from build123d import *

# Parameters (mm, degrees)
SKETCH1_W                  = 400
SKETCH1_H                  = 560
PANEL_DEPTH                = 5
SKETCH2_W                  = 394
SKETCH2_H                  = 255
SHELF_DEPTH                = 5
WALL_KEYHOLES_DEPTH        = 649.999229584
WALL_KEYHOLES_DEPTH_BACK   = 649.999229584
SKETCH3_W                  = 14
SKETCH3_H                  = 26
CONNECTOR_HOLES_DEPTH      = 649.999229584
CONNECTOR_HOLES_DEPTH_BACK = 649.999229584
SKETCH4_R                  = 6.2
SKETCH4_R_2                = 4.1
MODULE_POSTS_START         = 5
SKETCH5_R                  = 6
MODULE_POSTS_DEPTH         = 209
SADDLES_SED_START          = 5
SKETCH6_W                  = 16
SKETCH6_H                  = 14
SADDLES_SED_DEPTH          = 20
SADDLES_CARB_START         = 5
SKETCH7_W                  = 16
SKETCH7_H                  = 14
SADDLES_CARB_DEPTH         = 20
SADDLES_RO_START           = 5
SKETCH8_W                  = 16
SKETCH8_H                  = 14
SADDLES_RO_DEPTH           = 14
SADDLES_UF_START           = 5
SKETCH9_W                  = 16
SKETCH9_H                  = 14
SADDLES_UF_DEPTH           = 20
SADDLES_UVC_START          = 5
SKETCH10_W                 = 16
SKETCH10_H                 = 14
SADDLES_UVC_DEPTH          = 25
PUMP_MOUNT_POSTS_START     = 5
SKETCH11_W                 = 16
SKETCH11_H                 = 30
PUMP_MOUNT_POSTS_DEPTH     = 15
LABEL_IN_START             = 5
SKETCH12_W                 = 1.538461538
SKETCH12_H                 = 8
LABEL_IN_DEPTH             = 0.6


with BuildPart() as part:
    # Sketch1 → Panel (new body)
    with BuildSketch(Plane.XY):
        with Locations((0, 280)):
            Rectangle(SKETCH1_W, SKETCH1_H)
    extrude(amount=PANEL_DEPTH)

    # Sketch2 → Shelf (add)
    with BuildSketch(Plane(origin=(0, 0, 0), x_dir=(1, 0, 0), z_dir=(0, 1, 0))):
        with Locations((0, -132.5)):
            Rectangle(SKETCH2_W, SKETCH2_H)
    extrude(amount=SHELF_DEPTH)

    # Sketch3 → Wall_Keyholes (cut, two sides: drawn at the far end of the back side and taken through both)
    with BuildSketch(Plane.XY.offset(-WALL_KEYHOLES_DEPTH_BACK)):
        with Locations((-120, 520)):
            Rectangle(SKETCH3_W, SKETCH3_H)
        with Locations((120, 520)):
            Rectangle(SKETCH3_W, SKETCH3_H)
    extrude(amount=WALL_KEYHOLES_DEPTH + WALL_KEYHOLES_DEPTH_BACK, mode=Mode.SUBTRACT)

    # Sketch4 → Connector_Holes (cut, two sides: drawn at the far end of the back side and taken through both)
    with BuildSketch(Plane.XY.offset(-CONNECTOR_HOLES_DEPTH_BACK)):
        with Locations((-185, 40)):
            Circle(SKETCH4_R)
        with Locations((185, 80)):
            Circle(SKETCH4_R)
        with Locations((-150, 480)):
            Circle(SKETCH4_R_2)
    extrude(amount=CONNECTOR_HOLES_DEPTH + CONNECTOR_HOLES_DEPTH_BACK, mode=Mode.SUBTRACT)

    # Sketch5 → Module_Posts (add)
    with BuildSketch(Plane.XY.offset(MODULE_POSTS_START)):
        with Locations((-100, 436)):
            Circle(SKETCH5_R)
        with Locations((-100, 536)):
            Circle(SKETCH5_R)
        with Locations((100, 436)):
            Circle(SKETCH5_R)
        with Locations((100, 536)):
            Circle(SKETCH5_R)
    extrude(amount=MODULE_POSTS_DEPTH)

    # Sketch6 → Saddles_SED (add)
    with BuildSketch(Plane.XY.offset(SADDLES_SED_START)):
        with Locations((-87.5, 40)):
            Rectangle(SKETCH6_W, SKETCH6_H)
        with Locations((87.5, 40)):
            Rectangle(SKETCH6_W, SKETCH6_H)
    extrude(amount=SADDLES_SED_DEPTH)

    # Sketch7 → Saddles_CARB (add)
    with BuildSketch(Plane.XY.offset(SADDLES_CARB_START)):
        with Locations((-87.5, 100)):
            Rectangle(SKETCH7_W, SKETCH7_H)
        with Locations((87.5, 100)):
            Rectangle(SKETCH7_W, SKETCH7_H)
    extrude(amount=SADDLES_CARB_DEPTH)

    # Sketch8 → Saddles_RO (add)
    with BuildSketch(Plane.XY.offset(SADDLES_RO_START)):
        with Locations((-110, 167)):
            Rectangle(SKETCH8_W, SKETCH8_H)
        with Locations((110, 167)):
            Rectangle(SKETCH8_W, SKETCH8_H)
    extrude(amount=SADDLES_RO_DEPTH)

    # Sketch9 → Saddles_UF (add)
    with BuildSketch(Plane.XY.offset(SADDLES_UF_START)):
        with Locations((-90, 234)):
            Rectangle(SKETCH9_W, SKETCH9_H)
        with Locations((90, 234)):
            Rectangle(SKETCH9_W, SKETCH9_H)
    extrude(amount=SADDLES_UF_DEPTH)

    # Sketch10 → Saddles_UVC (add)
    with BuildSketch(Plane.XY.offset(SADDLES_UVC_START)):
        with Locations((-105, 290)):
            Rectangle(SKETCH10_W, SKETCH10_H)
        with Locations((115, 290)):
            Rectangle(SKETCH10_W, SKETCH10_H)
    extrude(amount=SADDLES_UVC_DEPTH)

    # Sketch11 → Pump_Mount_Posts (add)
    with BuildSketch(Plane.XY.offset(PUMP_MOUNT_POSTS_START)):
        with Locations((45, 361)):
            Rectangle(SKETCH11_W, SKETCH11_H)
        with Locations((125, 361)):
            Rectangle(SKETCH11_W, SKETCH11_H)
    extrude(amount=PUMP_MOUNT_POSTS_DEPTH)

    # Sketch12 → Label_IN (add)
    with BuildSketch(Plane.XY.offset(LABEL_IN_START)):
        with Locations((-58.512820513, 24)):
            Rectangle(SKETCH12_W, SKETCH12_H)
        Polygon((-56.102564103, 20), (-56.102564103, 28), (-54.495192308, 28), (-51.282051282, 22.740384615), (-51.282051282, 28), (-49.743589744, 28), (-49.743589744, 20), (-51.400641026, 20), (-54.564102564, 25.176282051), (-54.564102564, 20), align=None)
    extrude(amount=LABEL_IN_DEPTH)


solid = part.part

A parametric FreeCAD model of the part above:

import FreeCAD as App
import Part
import Sketcher

doc = App.newDocument("Part")
params = doc.addObject("Spreadsheet::Sheet", "Params")
for row, (alias, value) in enumerate([
    ("sketch1_width", "400 mm"),
    ("sketch1_height", "560 mm"),
    ("pad1_length", "5 mm"),
    ("sketch2_width", "394 mm"),
    ("sketch2_height", "255 mm"),
    ("pad2_length", "5 mm"),
    ("sketch3_width", "14 mm"),
    ("sketch3_height", "26 mm"),
    ("sketch4_diameter", "12.4 mm"),
    ("sketch4_diameter2", "8.2 mm"),
    ("sketch5_diameter", "12 mm"),
    ("pad3_length", "209 mm"),
    ("sketch6_width", "16 mm"),
    ("sketch6_height", "14 mm"),
    ("pad4_length", "20 mm"),
    ("sketch7_width", "16 mm"),
    ("sketch7_height", "14 mm"),
    ("pad5_length", "20 mm"),
    ("sketch8_width", "16 mm"),
    ("sketch8_height", "14 mm"),
    ("pad6_length", "14 mm"),
    ("sketch9_width", "16 mm"),
    ("sketch9_height", "14 mm"),
    ("pad7_length", "20 mm"),
    ("sketch10_width", "16 mm"),
    ("sketch10_height", "14 mm"),
    ("pad8_length", "25 mm"),
    ("sketch11_width", "16 mm"),
    ("sketch11_height", "30 mm"),
    ("pad9_length", "15 mm"),
    ("sketch12_height", "8 mm"),
    ("pad10_length", "0.6 mm"),
], start=1):
    params.set(f"A{row}", alias)
    params.set(f"B{row}", "=" + value)
    params.setAlias(f"B{row}", alias)

body = doc.addObject("PartDesign::Body", "Body")

# Sketch on XY plane
sketch1 = doc.addObject("Sketcher::SketchObject", "Sketch")
body.addObject(sketch1)
sketch1.AttachmentSupport = (doc.XY_Plane, [""])
sketch1.MapMode = "FlatFace"
sketch1.addGeometry([
    Part.LineSegment(App.Vector(-200, 560, 0), App.Vector(-200, 0, 0)),
    Part.LineSegment(App.Vector(-200, 0, 0), App.Vector(200, 0, 0)),
    Part.LineSegment(App.Vector(200, 0, 0), App.Vector(200, 560, 0)),
    Part.LineSegment(App.Vector(200, 560, 0), App.Vector(-200, 560, 0)),
], False)
sketch1.addConstraint([
    Sketcher.Constraint("Coincident", 0, 2, 1, 1),
    Sketcher.Constraint("Coincident", 1, 2, 2, 1),
    Sketcher.Constraint("Coincident", 2, 2, 3, 1),
    Sketcher.Constraint("Coincident", 3, 2, 0, 1),
    Sketcher.Constraint("Vertical", 0),
    Sketcher.Constraint("Horizontal", 1),
    Sketcher.Constraint("Vertical", 2),
    Sketcher.Constraint("Horizontal", 3),
    Sketcher.Constraint("Symmetric", 0, 2, 1, 2, -1, 1),
    Sketcher.Constraint("DistanceX", 1, 1, 1, 2, 400.0),
    Sketcher.Constraint("DistanceY", 0, 2, 0, 1, 560.0),
])
sketch1.setExpression("Constraints[9]", "Params.sketch1_width")
sketch1.setExpression("Constraints[10]", "Params.sketch1_height")
pad1 = doc.addObject("PartDesign::Pad", "Pad")
body.addObject(pad1)
pad1.Profile = sketch1
pad1.setExpression("Length", "Params.pad1_length")

# Sketch on XZ plane
sketch2 = doc.addObject("Sketcher::SketchObject", "Sketch001")
body.addObject(sketch2)
sketch2.AttachmentSupport = (doc.XZ_Plane, [""])
sketch2.MapMode = "FlatFace"
sketch2.addGeometry([
    Part.LineSegment(App.Vector(-197, 5, 0), App.Vector(-197, 260, 0)),
    Part.LineSegment(App.Vector(-197, 260, 0), App.Vector(197, 260, 0)),
    Part.LineSegment(App.Vector(197, 260, 0), App.Vector(197, 5, 0)),
    Part.LineSegment(App.Vector(197, 5, 0), App.Vector(-197, 5, 0)),
], False)
sketch2.addConstraint([
    Sketcher.Constraint("Coincident", 0, 2, 1, 1),
    Sketcher.Constraint("Coincident", 1, 2, 2, 1),
    Sketcher.Constraint("Coincident", 2, 2, 3, 1),
    Sketcher.Constraint("Coincident", 3, 2, 0, 1),
    Sketcher.Constraint("Vertical", 0),
    Sketcher.Constraint("Horizontal", 1),
    Sketcher.Constraint("Vertical", 2),
    Sketcher.Constraint("Horizontal", 3),
    Sketcher.Constraint("DistanceX", 1, 1, 1, 2, 394.0),
    Sketcher.Constraint("DistanceY", 0, 1, 0, 2, 255.0),
    Sketcher.Constraint("DistanceX", 0, 2, -1, 1, 197.0),
    Sketcher.Constraint("DistanceY", -1, 1, 0, 2, 260.0),
])
sketch2.setExpression("Constraints[8]", "Params.sketch2_width")
sketch2.setExpression("Constraints[9]", "Params.sketch2_height")
pad2 = doc.addObject("PartDesign::Pad", "Pad001")
body.addObject(pad2)
pad2.Profile = sketch2
pad2.setExpression("Length", "Params.pad2_length")
pad2.Reversed = True

# Sketch on XY plane
sketch3 = doc.addObject("Sketcher::SketchObject", "Sketch002")
body.addObject(sketch3)
sketch3.AttachmentSupport = (doc.XY_Plane, [""])
sketch3.MapMode = "FlatFace"
sketch3.addGeometry([
    Part.LineSegment(App.Vector(-127, 533, 0), App.Vector(-127, 507, 0)),  # 0
    Part.LineSegment(App.Vector(-127, 507, 0), App.Vector(-113, 507, 0)),  # 1
    Part.LineSegment(App.Vector(-113, 507, 0), App.Vector(-113, 533, 0)),  # 2
    Part.LineSegment(App.Vector(-113, 533, 0), App.Vector(-127, 533, 0)),  # 3
    Part.LineSegment(App.Vector(113, 533, 0), App.Vector(113, 507, 0)),  # 4
    Part.LineSegment(App.Vector(113, 507, 0), App.Vector(127, 507, 0)),  # 5
    Part.LineSegment(App.Vector(127, 507, 0), App.Vector(127, 533, 0)),  # 6
    Part.LineSegment(App.Vector(127, 533, 0), App.Vector(113, 533, 0)),  # 7
], False)
sketch3.addConstraint([
    Sketcher.Constraint("Coincident", 0, 2, 1, 1),
    Sketcher.Constraint("Coincident", 1, 2, 2, 1),
    Sketcher.Constraint("Coincident", 2, 2, 3, 1),
    Sketcher.Constraint("Coincident", 3, 2, 0, 1),
    Sketcher.Constraint("Coincident", 4, 2, 5, 1),
    Sketcher.Constraint("Coincident", 5, 2, 6, 1),
    Sketcher.Constraint("Coincident", 6, 2, 7, 1),
    Sketcher.Constraint("Coincident", 7, 2, 4, 1),
    Sketcher.Constraint("Vertical", 0),
    Sketcher.Constraint("Horizontal", 1),
    Sketcher.Constraint("Vertical", 2),
    Sketcher.Constraint("Horizontal", 3),
    Sketcher.Constraint("Vertical", 4),
    Sketcher.Constraint("Horizontal", 5),
    Sketcher.Constraint("Vertical", 6),
    Sketcher.Constraint("Horizontal", 7),
    Sketcher.Constraint("Symmetric", 1, 2, 4, 2, -2),
    Sketcher.Constraint("Symmetric", 3, 2, 6, 2, -2),
    Sketcher.Constraint("DistanceX", 1, 1, 1, 2, 14.0),
    Sketcher.Constraint("DistanceY", 0, 2, 0, 1, 26.0),
    Sketcher.Constraint("DistanceX", 0, 2, -1, 1, 127.0),
    Sketcher.Constraint("DistanceY", -1, 1, 0, 2, 507.0),
])
sketch3.setExpression("Constraints[18]", "Params.sketch3_width")
sketch3.setExpression("Constraints[19]", "Params.sketch3_height")
pocket1 = doc.addObject("PartDesign::Pocket", "Pocket")
body.addObject(pocket1)
pocket1.Profile = sketch3
pocket1.Type = "ThroughAll"
pocket1.Midplane = True

# Sketch on XY plane
sketch4 = doc.addObject("Sketcher::SketchObject", "Sketch003")
body.addObject(sketch4)
sketch4.AttachmentSupport = (doc.XY_Plane, [""])
sketch4.MapMode = "FlatFace"
sketch4.addGeometry([
    Part.Circle(App.Vector(-185, 40, 0), App.Vector(0, 0, 1), 6.2),
    Part.Circle(App.Vector(185, 80, 0), App.Vector(0, 0, 1), 6.2),
    Part.Circle(App.Vector(-150, 480, 0), App.Vector(0, 0, 1), 4.1),
], False)
sketch4.addConstraint([
    Sketcher.Constraint("Equal", 0, 1),
    Sketcher.Constraint("Diameter", 0, 12.4),
    Sketcher.Constraint("Diameter", 2, 8.2),
    Sketcher.Constraint("DistanceX", 0, 3, -1, 1, 185.0),
    Sketcher.Constraint("DistanceY", -1, 1, 0, 3, 40.0),
    Sketcher.Constraint("DistanceX", -1, 1, 1, 3, 185.0),
    Sketcher.Constraint("DistanceY", -1, 1, 1, 3, 80.0),
    Sketcher.Constraint("DistanceX", 2, 3, -1, 1, 150.0),
    Sketcher.Constraint("DistanceY", -1, 1, 2, 3, 480.0),
])
sketch4.setExpression("Constraints[1]", "Params.sketch4_diameter")
sketch4.setExpression("Constraints[2]", "Params.sketch4_diameter2")
pocket2 = doc.addObject("PartDesign::Pocket", "Pocket001")
body.addObject(pocket2)
pocket2.Profile = sketch4
pocket2.Type = "ThroughAll"
pocket2.Midplane = True

# Sketch on XY plane
sketch5 = doc.addObject("Sketcher::SketchObject", "Sketch004")
body.addObject(sketch5)
sketch5.AttachmentSupport = (doc.XY_Plane, [""])
sketch5.MapMode = "FlatFace"
sketch5.AttachmentOffset = App.Placement(App.Vector(0, 0, 5), App.Rotation())
sketch5.addGeometry([
    Part.Circle(App.Vector(-100, 436, 0), App.Vector(0, 0, 1), 6),
    Part.Circle(App.Vector(-100, 536, 0), App.Vector(0, 0, 1), 6),
    Part.Circle(App.Vector(100, 436, 0), App.Vector(0, 0, 1), 6),
    Part.Circle(App.Vector(100, 536, 0), App.Vector(0, 0, 1), 6),
], False)
sketch5.addConstraint([
    Sketcher.Constraint("Equal", 0, 1),
    Sketcher.Constraint("Equal", 1, 2),
    Sketcher.Constraint("Equal", 2, 3),
    Sketcher.Constraint("Symmetric", 0, 3, 2, 3, -2),
    Sketcher.Constraint("Symmetric", 1, 3, 3, 3, -2),
    Sketcher.Constraint("Vertical", 0, 3, 1, 3),
    Sketcher.Constraint("Diameter", 0, 12.0),
    Sketcher.Constraint("DistanceX", 0, 3, -1, 1, 100.0),
    Sketcher.Constraint("DistanceY", -1, 1, 0, 3, 436.0),
    Sketcher.Constraint("DistanceY", -1, 1, 1, 3, 536.0),
])
sketch5.setExpression("Constraints[6]", "Params.sketch5_diameter")
pad3 = doc.addObject("PartDesign::Pad", "Pad002")
body.addObject(pad3)
pad3.Profile = sketch5
pad3.setExpression("Length", "Params.pad3_length")

# Sketch on XY plane
sketch6 = doc.addObject("Sketcher::SketchObject", "Sketch005")
body.addObject(sketch6)
sketch6.AttachmentSupport = (doc.XY_Plane, [""])
sketch6.MapMode = "FlatFace"
sketch6.AttachmentOffset = App.Placement(App.Vector(0, 0, 5), App.Rotation())
sketch6.addGeometry([
    Part.LineSegment(App.Vector(-96, 47, 0), App.Vector(-96, 33, 0)),  # 0
    Part.LineSegment(App.Vector(-96, 33, 0), App.Vector(-80, 33, 0)),  # 1
    Part.LineSegment(App.Vector(-80, 33, 0), App.Vector(-80, 47, 0)),  # 2
    Part.LineSegment(App.Vector(-80, 47, 0), App.Vector(-96, 47, 0)),  # 3
    Part.LineSegment(App.Vector(80, 47, 0), App.Vector(80, 33, 0)),  # 4
    Part.LineSegment(App.Vector(80, 33, 0), App.Vector(96, 33, 0)),  # 5
    Part.LineSegment(App.Vector(96, 33, 0), App.Vector(96, 47, 0)),  # 6
    Part.LineSegment(App.Vector(96, 47, 0), App.Vector(80, 47, 0)),  # 7
], False)
sketch6.addConstraint([
    Sketcher.Constraint("Coincident", 0, 2, 1, 1),
    Sketcher.Constraint("Coincident", 1, 2, 2, 1),
    Sketcher.Constraint("Coincident", 2, 2, 3, 1),
    Sketcher.Constraint("Coincident", 3, 2, 0, 1),
    Sketcher.Constraint("Coincident", 4, 2, 5, 1),
    Sketcher.Constraint("Coincident", 5, 2, 6, 1),
    Sketcher.Constraint("Coincident", 6, 2, 7, 1),
    Sketcher.Constraint("Coincident", 7, 2, 4, 1),
    Sketcher.Constraint("Vertical", 0),
    Sketcher.Constraint("Horizontal", 1),
    Sketcher.Constraint("Vertical", 2),
    Sketcher.Constraint("Horizontal", 3),
    Sketcher.Constraint("Vertical", 4),
    Sketcher.Constraint("Horizontal", 5),
    Sketcher.Constraint("Vertical", 6),
    Sketcher.Constraint("Horizontal", 7),
    Sketcher.Constraint("Symmetric", 1, 2, 4, 2, -2),
    Sketcher.Constraint("Symmetric", 3, 2, 6, 2, -2),
    Sketcher.Constraint("DistanceX", 1, 1, 1, 2, 16.0),
    Sketcher.Constraint("DistanceY", 0, 2, 0, 1, 14.0),
    Sketcher.Constraint("DistanceY", -1, 1, 0, 2, 33.0),
    Sketcher.Constraint("DistanceX", 1, 2, 4, 2, 159.0),
])
sketch6.setExpression("Constraints[18]", "Params.sketch6_width")
sketch6.setExpression("Constraints[19]", "Params.sketch6_height")
pad4 = doc.addObject("PartDesign::Pad", "Pad003")
body.addObject(pad4)
pad4.Profile = sketch6
pad4.setExpression("Length", "Params.pad4_length")

# Sketch on XY plane
sketch7 = doc.addObject("Sketcher::SketchObject", "Sketch006")
body.addObject(sketch7)
sketch7.AttachmentSupport = (doc.XY_Plane, [""])
sketch7.MapMode = "FlatFace"
sketch7.AttachmentOffset = App.Placement(App.Vector(0, 0, 5), App.Rotation())
sketch7.addGeometry([
    Part.LineSegment(App.Vector(-96, 107, 0), App.Vector(-96, 93, 0)),  # 0
    Part.LineSegment(App.Vector(-96, 93, 0), App.Vector(-80, 93, 0)),  # 1
    Part.LineSegment(App.Vector(-80, 93, 0), App.Vector(-80, 107, 0)),  # 2
    Part.LineSegment(App.Vector(-80, 107, 0), App.Vector(-96, 107, 0)),  # 3
    Part.LineSegment(App.Vector(80, 107, 0), App.Vector(80, 93, 0)),  # 4
    Part.LineSegment(App.Vector(80, 93, 0), App.Vector(96, 93, 0)),  # 5
    Part.LineSegment(App.Vector(96, 93, 0), App.Vector(96, 107, 0)),  # 6
    Part.LineSegment(App.Vector(96, 107, 0), App.Vector(80, 107, 0)),  # 7
], False)
sketch7.addConstraint([
    Sketcher.Constraint("Coincident", 0, 2, 1, 1),
    Sketcher.Constraint("Coincident", 1, 2, 2, 1),
    Sketcher.Constraint("Coincident", 2, 2, 3, 1),
    Sketcher.Constraint("Coincident", 3, 2, 0, 1),
    Sketcher.Constraint("Coincident", 4, 2, 5, 1),
    Sketcher.Constraint("Coincident", 5, 2, 6, 1),
    Sketcher.Constraint("Coincident", 6, 2, 7, 1),
    Sketcher.Constraint("Coincident", 7, 2, 4, 1),
    Sketcher.Constraint("Vertical", 0),
    Sketcher.Constraint("Horizontal", 1),
    Sketcher.Constraint("Vertical", 2),
    Sketcher.Constraint("Horizontal", 3),
    Sketcher.Constraint("Vertical", 4),
    Sketcher.Constraint("Horizontal", 5),
    Sketcher.Constraint("Vertical", 6),
    Sketcher.Constraint("Horizontal", 7),
    Sketcher.Constraint("Symmetric", 1, 2, 4, 2, -2),
    Sketcher.Constraint("Symmetric", 3, 2, 6, 2, -2),
    Sketcher.Constraint("DistanceX", 1, 1, 1, 2, 16.0),
    Sketcher.Constraint("DistanceY", 0, 2, 0, 1, 14.0),
    Sketcher.Constraint("DistanceY", -1, 1, 0, 2, 93.0),
    Sketcher.Constraint("DistanceX", 1, 2, 4, 2, 159.0),
])
sketch7.setExpression("Constraints[18]", "Params.sketch7_width")
sketch7.setExpression("Constraints[19]", "Params.sketch7_height")
pad5 = doc.addObject("PartDesign::Pad", "Pad004")
body.addObject(pad5)
pad5.Profile = sketch7
pad5.setExpression("Length", "Params.pad5_length")

# Sketch on XY plane
sketch8 = doc.addObject("Sketcher::SketchObject", "Sketch007")
body.addObject(sketch8)
sketch8.AttachmentSupport = (doc.XY_Plane, [""])
sketch8.MapMode = "FlatFace"
sketch8.AttachmentOffset = App.Placement(App.Vector(0, 0, 5), App.Rotation())
sketch8.addGeometry([
    Part.LineSegment(App.Vector(-118, 174, 0), App.Vector(-118, 160, 0)),  # 0
    Part.LineSegment(App.Vector(-118, 160, 0), App.Vector(-102, 160, 0)),  # 1
    Part.LineSegment(App.Vector(-102, 160, 0), App.Vector(-102, 174, 0)),  # 2
    Part.LineSegment(App.Vector(-102, 174, 0), App.Vector(-118, 174, 0)),  # 3
    Part.LineSegment(App.Vector(102, 174, 0), App.Vector(102, 160, 0)),  # 4
    Part.LineSegment(App.Vector(102, 160, 0), App.Vector(118, 160, 0)),  # 5
    Part.LineSegment(App.Vector(118, 160, 0), App.Vector(118, 174, 0)),  # 6
    Part.LineSegment(App.Vector(118, 174, 0), App.Vector(102, 174, 0)),  # 7
], False)
sketch8.addConstraint([
    Sketcher.Constraint("Coincident", 0, 2, 1, 1),
    Sketcher.Constraint("Coincident", 1, 2, 2, 1),
    Sketcher.Constraint("Coincident", 2, 2, 3, 1),
    Sketcher.Constraint("Coincident", 3, 2, 0, 1),
    Sketcher.Constraint("Coincident", 4, 2, 5, 1),
    Sketcher.Constraint("Coincident", 5, 2, 6, 1),
    Sketcher.Constraint("Coincident", 6, 2, 7, 1),
    Sketcher.Constraint("Coincident", 7, 2, 4, 1),
    Sketcher.Constraint("Vertical", 0),
    Sketcher.Constraint("Horizontal", 1),
    Sketcher.Constraint("Vertical", 2),
    Sketcher.Constraint("Horizontal", 3),
    Sketcher.Constraint("Vertical", 4),
    Sketcher.Constraint("Horizontal", 5),
    Sketcher.Constraint("Vertical", 6),
    Sketcher.Constraint("Horizontal", 7),
    Sketcher.Constraint("Symmetric", 1, 2, 4, 2, -2),
    Sketcher.Constraint("Symmetric", 3, 2, 6, 2, -2),
    Sketcher.Constraint("DistanceX", 1, 1, 1, 2, 16.0),
    Sketcher.Constraint("DistanceY", 0, 2, 0, 1, 14.0),
    Sketcher.Constraint("DistanceX", 0, 2, -1, 1, 118.0),
    Sketcher.Constraint("DistanceY", -1, 1, 0, 2, 160.0),
])
sketch8.setExpression("Constraints[18]", "Params.sketch8_width")
sketch8.setExpression("Constraints[19]", "Params.sketch8_height")
pad6 = doc.addObject("PartDesign::Pad", "Pad005")
body.addObject(pad6)
pad6.Profile = sketch8
pad6.setExpression("Length", "Params.pad6_length")

# Sketch on XY plane
sketch9 = doc.addObject("Sketcher::SketchObject", "Sketch008")
body.addObject(sketch9)
sketch9.AttachmentSupport = (doc.XY_Plane, [""])
sketch9.MapMode = "FlatFace"
sketch9.AttachmentOffset = App.Placement(App.Vector(0, 0, 5), App.Rotation())
sketch9.addGeometry([
    Part.LineSegment(App.Vector(-98, 241, 0), App.Vector(-98, 227, 0)),  # 0
    Part.LineSegment(App.Vector(-98, 227, 0), App.Vector(-82, 227, 0)),  # 1
    Part.LineSegment(App.Vector(-82, 227, 0), App.Vector(-82, 241, 0)),  # 2
    Part.LineSegment(App.Vector(-82, 241, 0), App.Vector(-98, 241, 0)),  # 3
    Part.LineSegment(App.Vector(82, 241, 0), App.Vector(82, 227, 0)),  # 4
    Part.LineSegment(App.Vector(82, 227, 0), App.Vector(98, 227, 0)),  # 5
    Part.LineSegment(App.Vector(98, 227, 0), App.Vector(98, 241, 0)),  # 6
    Part.LineSegment(App.Vector(98, 241, 0), App.Vector(82, 241, 0)),  # 7
], False)
sketch9.addConstraint([
    Sketcher.Constraint("Coincident", 0, 2, 1, 1),
    Sketcher.Constraint("Coincident", 1, 2, 2, 1),
    Sketcher.Constraint("Coincident", 2, 2, 3, 1),
    Sketcher.Constraint("Coincident", 3, 2, 0, 1),
    Sketcher.Constraint("Coincident", 4, 2, 5, 1),
    Sketcher.Constraint("Coincident", 5, 2, 6, 1),
    Sketcher.Constraint("Coincident", 6, 2, 7, 1),
    Sketcher.Constraint("Coincident", 7, 2, 4, 1),
    Sketcher.Constraint("Vertical", 0),
    Sketcher.Constraint("Horizontal", 1),
    Sketcher.Constraint("Vertical", 2),
    Sketcher.Constraint("Horizontal", 3),
    Sketcher.Constraint("Vertical", 4),
    Sketcher.Constraint("Horizontal", 5),
    Sketcher.Constraint("Vertical", 6),
    Sketcher.Constraint("Horizontal", 7),
    Sketcher.Constraint("Symmetric", 1, 2, 4, 2, -2),
    Sketcher.Constraint("Symmetric", 3, 2, 6, 2, -2),
    Sketcher.Constraint("DistanceX", 1, 1, 1, 2, 16.0),
    Sketcher.Constraint("DistanceY", 0, 2, 0, 1, 14.0),
    Sketcher.Constraint("DistanceX", 0, 2, -1, 1, 98.0),
    Sketcher.Constraint("DistanceY", -1, 1, 0, 2, 227.0),
])
sketch9.setExpression("Constraints[18]", "Params.sketch9_width")
sketch9.setExpression("Constraints[19]", "Params.sketch9_height")
pad7 = doc.addObject("PartDesign::Pad", "Pad006")
body.addObject(pad7)
pad7.Profile = sketch9
pad7.setExpression("Length", "Params.pad7_length")

# Sketch on XY plane
sketch10 = doc.addObject("Sketcher::SketchObject", "Sketch009")
body.addObject(sketch10)
sketch10.AttachmentSupport = (doc.XY_Plane, [""])
sketch10.MapMode = "FlatFace"
sketch10.AttachmentOffset = App.Placement(App.Vector(0, 0, 5), App.Rotation())
sketch10.addGeometry([
    Part.LineSegment(App.Vector(-113, 297, 0), App.Vector(-113, 283, 0)),  # 0
    Part.LineSegment(App.Vector(-113, 283, 0), App.Vector(-97, 283, 0)),  # 1
    Part.LineSegment(App.Vector(-97, 283, 0), App.Vector(-97, 297, 0)),  # 2
    Part.LineSegment(App.Vector(-97, 297, 0), App.Vector(-113, 297, 0)),  # 3
    Part.LineSegment(App.Vector(107, 297, 0), App.Vector(107, 283, 0)),  # 4
    Part.LineSegment(App.Vector(107, 283, 0), App.Vector(123, 283, 0)),  # 5
    Part.LineSegment(App.Vector(123, 283, 0), App.Vector(123, 297, 0)),  # 6
    Part.LineSegment(App.Vector(123, 297, 0), App.Vector(107, 297, 0)),  # 7
], False)
sketch10.addConstraint([
    Sketcher.Constraint("Coincident", 0, 2, 1, 1),
    Sketcher.Constraint("Coincident", 1, 2, 2, 1),
    Sketcher.Constraint("Coincident", 2, 2, 3, 1),
    Sketcher.Constraint("Coincident", 3, 2, 0, 1),
    Sketcher.Constraint("Coincident", 4, 2, 5, 1),
    Sketcher.Constraint("Coincident", 5, 2, 6, 1),
    Sketcher.Constraint("Coincident", 6, 2, 7, 1),
    Sketcher.Constraint("Coincident", 7, 2, 4, 1),
    Sketcher.Constraint("Vertical", 0),
    Sketcher.Constraint("Horizontal", 1),
    Sketcher.Constraint("Vertical", 2),
    Sketcher.Constraint("Horizontal", 3),
    Sketcher.Constraint("Vertical", 4),
    Sketcher.Constraint("Horizontal", 5),
    Sketcher.Constraint("Vertical", 6),
    Sketcher.Constraint("Horizontal", 7),
    Sketcher.Constraint("Horizontal", 1, 2, 4, 2),
    Sketcher.Constraint("Horizontal", 3, 2, 6, 2),
    Sketcher.Constraint("Equal", 3, 5),
    Sketcher.Constraint("DistanceX", 1, 1, 1, 2, 16.0),
    Sketcher.Constraint("DistanceY", 0, 2, 0, 1, 14.0),
    Sketcher.Constraint("DistanceX", 0, 2, -1, 1, 113.0),
    Sketcher.Constraint("DistanceY", -1, 1, 0, 2, 283.0),
    Sketcher.Constraint("DistanceX", -1, 1, 4, 2, 107.0),
])
sketch10.setExpression("Constraints[19]", "Params.sketch10_width")
sketch10.setExpression("Constraints[20]", "Params.sketch10_height")
pad8 = doc.addObject("PartDesign::Pad", "Pad007")
body.addObject(pad8)
pad8.Profile = sketch10
pad8.setExpression("Length", "Params.pad8_length")

# Sketch on XY plane
sketch11 = doc.addObject("Sketcher::SketchObject", "Sketch010")
body.addObject(sketch11)
sketch11.AttachmentSupport = (doc.XY_Plane, [""])
sketch11.MapMode = "FlatFace"
sketch11.AttachmentOffset = App.Placement(App.Vector(0, 0, 5), App.Rotation())
sketch11.addGeometry([
    Part.LineSegment(App.Vector(37, 376, 0), App.Vector(37, 346, 0)),  # 0
    Part.LineSegment(App.Vector(37, 346, 0), App.Vector(53, 346, 0)),  # 1
    Part.LineSegment(App.Vector(53, 346, 0), App.Vector(53, 376, 0)),  # 2
    Part.LineSegment(App.Vector(53, 376, 0), App.Vector(37, 376, 0)),  # 3
    Part.LineSegment(App.Vector(117, 376, 0), App.Vector(117, 346, 0)),  # 4
    Part.LineSegment(App.Vector(117, 346, 0), App.Vector(133, 346, 0)),  # 5
    Part.LineSegment(App.Vector(133, 346, 0), App.Vector(133, 376, 0)),  # 6
    Part.LineSegment(App.Vector(133, 376, 0), App.Vector(117, 376, 0)),  # 7
], False)
sketch11.addConstraint([
    Sketcher.Constraint("Coincident", 0, 2, 1, 1),
    Sketcher.Constraint("Coincident", 1, 2, 2, 1),
    Sketcher.Constraint("Coincident", 2, 2, 3, 1),
    Sketcher.Constraint("Coincident", 3, 2, 0, 1),
    Sketcher.Constraint("Coincident", 4, 2, 5, 1),
    Sketcher.Constraint("Coincident", 5, 2, 6, 1),
    Sketcher.Constraint("Coincident", 6, 2, 7, 1),
    Sketcher.Constraint("Coincident", 7, 2, 4, 1),
    Sketcher.Constraint("Vertical", 0),
    Sketcher.Constraint("Horizontal", 1),
    Sketcher.Constraint("Vertical", 2),
    Sketcher.Constraint("Horizontal", 3),
    Sketcher.Constraint("Vertical", 4),
    Sketcher.Constraint("Horizontal", 5),
    Sketcher.Constraint("Vertical", 6),
    Sketcher.Constraint("Horizontal", 7),
    Sketcher.Constraint("Horizontal", 1, 2, 4, 2),
    Sketcher.Constraint("Horizontal", 3, 2, 6, 2),
    Sketcher.Constraint("Equal", 3, 5),
    Sketcher.Constraint("DistanceX", 1, 1, 1, 2, 16.0),
    Sketcher.Constraint("DistanceY", 0, 2, 0, 1, 30.0),
    Sketcher.Constraint("DistanceX", -1, 1, 0, 2, 37.0),
    Sketcher.Constraint("DistanceY", -1, 1, 0, 2, 346.0),
    Sketcher.Constraint("DistanceX", -1, 1, 4, 2, 117.0),
])
sketch11.setExpression("Constraints[19]", "Params.sketch11_width")
sketch11.setExpression("Constraints[20]", "Params.sketch11_height")
pad9 = doc.addObject("PartDesign::Pad", "Pad008")
body.addObject(pad9)
pad9.Profile = sketch11
pad9.setExpression("Length", "Params.pad9_length")

# Sketch on XY plane
sketch12 = doc.addObject("Sketcher::SketchObject", "Sketch011")
body.addObject(sketch12)
sketch12.AttachmentSupport = (doc.XY_Plane, [""])
sketch12.MapMode = "FlatFace"
sketch12.AttachmentOffset = App.Placement(App.Vector(0, 0, 5), App.Rotation())
sketch12.addGeometry([
    Part.LineSegment(App.Vector(-59.3, 28, 0), App.Vector(-59.3, 20, 0)),  # 0
    Part.LineSegment(App.Vector(-59.3, 20, 0), App.Vector(-57.7, 20, 0)),  # 1
    Part.LineSegment(App.Vector(-57.7, 20, 0), App.Vector(-57.7, 28, 0)),  # 2
    Part.LineSegment(App.Vector(-57.7, 28, 0), App.Vector(-59.3, 28, 0)),  # 3
    Part.LineSegment(App.Vector(-56.1, 28, 0), App.Vector(-56.1, 20, 0)),  # 4
    Part.LineSegment(App.Vector(-56.1, 20, 0), App.Vector(-54.6, 20, 0)),  # 5
    Part.LineSegment(App.Vector(-54.6, 20, 0), App.Vector(-54.6, 25.2, 0)),  # 6
    Part.LineSegment(App.Vector(-54.6, 25.2, 0), App.Vector(-51.4, 20, 0)),  # 7
    Part.LineSegment(App.Vector(-51.4, 20, 0), App.Vector(-49.7, 20, 0)),  # 8
    Part.LineSegment(App.Vector(-49.7, 20, 0), App.Vector(-49.7, 28, 0)),  # 9
    Part.LineSegment(App.Vector(-49.7, 28, 0), App.Vector(-51.3, 28, 0)),  # 10
    Part.LineSegment(App.Vector(-51.3, 28, 0), App.Vector(-51.3, 22.7, 0)),  # 11
    Part.LineSegment(App.Vector(-51.3, 22.7, 0), App.Vector(-54.5, 28, 0)),  # 12
    Part.LineSegment(App.Vector(-54.5, 28, 0), App.Vector(-56.1, 28, 0)),  # 13
], False)
sketch12.addConstraint([
    Sketcher.Constraint("Coincident", 0, 2, 1, 1),
    Sketcher.Constraint("Coincident", 1, 2, 2, 1),
    Sketcher.Constraint("Coincident", 2, 2, 3, 1),
    Sketcher.Constraint("Coincident", 3, 2, 0, 1),
    Sketcher.Constraint("Coincident", 4, 2, 5, 1),
    Sketcher.Constraint("Coincident", 5, 2, 6, 1),
    Sketcher.Constraint("Coincident", 6, 2, 7, 1),
    Sketcher.Constraint("Coincident", 7, 2, 8, 1),
    Sketcher.Constraint("Coincident", 8, 2, 9, 1),
    Sketcher.Constraint("Coincident", 9, 2, 10, 1),
    Sketcher.Constraint("Coincident", 10, 2, 11, 1),
    Sketcher.Constraint("Coincident", 11, 2, 12, 1),
    Sketcher.Constraint("Coincident", 12, 2, 13, 1),
    Sketcher.Constraint("Coincident", 13, 2, 4, 1),
    Sketcher.Constraint("Vertical", 0),
    Sketcher.Constraint("Horizontal", 1),
    Sketcher.Constraint("Vertical", 2),
    Sketcher.Constraint("Horizontal", 3),
    Sketcher.Constraint("Vertical", 4),
    Sketcher.Constraint("Horizontal", 5),
    Sketcher.Constraint("Vertical", 6),
    Sketcher.Constraint("Horizontal", 8),
    Sketcher.Constraint("Vertical", 9),
    Sketcher.Constraint("Horizontal", 10),
    Sketcher.Constraint("Vertical", 11),
    Sketcher.Constraint("Horizontal", 13),
    Sketcher.Constraint("Horizontal", 1, 2, 4, 2),
    Sketcher.Constraint("Horizontal", 5, 2, 7, 2),
    Sketcher.Constraint("Horizontal", 3, 2, 9, 2),
    Sketcher.Constraint("Horizontal", 10, 2, 12, 2),
    Sketcher.Constraint("Equal", 3, 5),
    Sketcher.Constraint("Equal", 5, 10),
    Sketcher.Constraint("DistanceY", 0, 2, 0, 1, 8.0),
    Sketcher.Constraint("DistanceY", -1, 1, 0, 2, 20.0),
    Sketcher.Constraint("DistanceX", 1, 2, 8, 2, 8.0),
    Sketcher.Constraint("DistanceX", 1, 1, 1, 2, 1.538462),
    Sketcher.Constraint("DistanceX", 8, 1, 8, 2, 1.657051),
    Sketcher.Constraint("DistanceX", 13, 2, 13, 1, 1.607372),
    Sketcher.Constraint("DistanceY", 6, 1, 6, 2, 5.176282),
    Sketcher.Constraint("DistanceY", 11, 2, 11, 1, 5.259615),
    Sketcher.Constraint("DistanceX", 0, 2, -1, 1, 59.282051),
    Sketcher.Constraint("DistanceX", 0, 2, 5, 2, 4.717949),
])
sketch12.setExpression("Constraints[32]", "Params.sketch12_height")
pad10 = doc.addObject("PartDesign::Pad", "Pad009")
body.addObject(pad10)
pad10.Profile = sketch12
pad10.setExpression("Length", "Params.pad10_length")

doc.recompute()
